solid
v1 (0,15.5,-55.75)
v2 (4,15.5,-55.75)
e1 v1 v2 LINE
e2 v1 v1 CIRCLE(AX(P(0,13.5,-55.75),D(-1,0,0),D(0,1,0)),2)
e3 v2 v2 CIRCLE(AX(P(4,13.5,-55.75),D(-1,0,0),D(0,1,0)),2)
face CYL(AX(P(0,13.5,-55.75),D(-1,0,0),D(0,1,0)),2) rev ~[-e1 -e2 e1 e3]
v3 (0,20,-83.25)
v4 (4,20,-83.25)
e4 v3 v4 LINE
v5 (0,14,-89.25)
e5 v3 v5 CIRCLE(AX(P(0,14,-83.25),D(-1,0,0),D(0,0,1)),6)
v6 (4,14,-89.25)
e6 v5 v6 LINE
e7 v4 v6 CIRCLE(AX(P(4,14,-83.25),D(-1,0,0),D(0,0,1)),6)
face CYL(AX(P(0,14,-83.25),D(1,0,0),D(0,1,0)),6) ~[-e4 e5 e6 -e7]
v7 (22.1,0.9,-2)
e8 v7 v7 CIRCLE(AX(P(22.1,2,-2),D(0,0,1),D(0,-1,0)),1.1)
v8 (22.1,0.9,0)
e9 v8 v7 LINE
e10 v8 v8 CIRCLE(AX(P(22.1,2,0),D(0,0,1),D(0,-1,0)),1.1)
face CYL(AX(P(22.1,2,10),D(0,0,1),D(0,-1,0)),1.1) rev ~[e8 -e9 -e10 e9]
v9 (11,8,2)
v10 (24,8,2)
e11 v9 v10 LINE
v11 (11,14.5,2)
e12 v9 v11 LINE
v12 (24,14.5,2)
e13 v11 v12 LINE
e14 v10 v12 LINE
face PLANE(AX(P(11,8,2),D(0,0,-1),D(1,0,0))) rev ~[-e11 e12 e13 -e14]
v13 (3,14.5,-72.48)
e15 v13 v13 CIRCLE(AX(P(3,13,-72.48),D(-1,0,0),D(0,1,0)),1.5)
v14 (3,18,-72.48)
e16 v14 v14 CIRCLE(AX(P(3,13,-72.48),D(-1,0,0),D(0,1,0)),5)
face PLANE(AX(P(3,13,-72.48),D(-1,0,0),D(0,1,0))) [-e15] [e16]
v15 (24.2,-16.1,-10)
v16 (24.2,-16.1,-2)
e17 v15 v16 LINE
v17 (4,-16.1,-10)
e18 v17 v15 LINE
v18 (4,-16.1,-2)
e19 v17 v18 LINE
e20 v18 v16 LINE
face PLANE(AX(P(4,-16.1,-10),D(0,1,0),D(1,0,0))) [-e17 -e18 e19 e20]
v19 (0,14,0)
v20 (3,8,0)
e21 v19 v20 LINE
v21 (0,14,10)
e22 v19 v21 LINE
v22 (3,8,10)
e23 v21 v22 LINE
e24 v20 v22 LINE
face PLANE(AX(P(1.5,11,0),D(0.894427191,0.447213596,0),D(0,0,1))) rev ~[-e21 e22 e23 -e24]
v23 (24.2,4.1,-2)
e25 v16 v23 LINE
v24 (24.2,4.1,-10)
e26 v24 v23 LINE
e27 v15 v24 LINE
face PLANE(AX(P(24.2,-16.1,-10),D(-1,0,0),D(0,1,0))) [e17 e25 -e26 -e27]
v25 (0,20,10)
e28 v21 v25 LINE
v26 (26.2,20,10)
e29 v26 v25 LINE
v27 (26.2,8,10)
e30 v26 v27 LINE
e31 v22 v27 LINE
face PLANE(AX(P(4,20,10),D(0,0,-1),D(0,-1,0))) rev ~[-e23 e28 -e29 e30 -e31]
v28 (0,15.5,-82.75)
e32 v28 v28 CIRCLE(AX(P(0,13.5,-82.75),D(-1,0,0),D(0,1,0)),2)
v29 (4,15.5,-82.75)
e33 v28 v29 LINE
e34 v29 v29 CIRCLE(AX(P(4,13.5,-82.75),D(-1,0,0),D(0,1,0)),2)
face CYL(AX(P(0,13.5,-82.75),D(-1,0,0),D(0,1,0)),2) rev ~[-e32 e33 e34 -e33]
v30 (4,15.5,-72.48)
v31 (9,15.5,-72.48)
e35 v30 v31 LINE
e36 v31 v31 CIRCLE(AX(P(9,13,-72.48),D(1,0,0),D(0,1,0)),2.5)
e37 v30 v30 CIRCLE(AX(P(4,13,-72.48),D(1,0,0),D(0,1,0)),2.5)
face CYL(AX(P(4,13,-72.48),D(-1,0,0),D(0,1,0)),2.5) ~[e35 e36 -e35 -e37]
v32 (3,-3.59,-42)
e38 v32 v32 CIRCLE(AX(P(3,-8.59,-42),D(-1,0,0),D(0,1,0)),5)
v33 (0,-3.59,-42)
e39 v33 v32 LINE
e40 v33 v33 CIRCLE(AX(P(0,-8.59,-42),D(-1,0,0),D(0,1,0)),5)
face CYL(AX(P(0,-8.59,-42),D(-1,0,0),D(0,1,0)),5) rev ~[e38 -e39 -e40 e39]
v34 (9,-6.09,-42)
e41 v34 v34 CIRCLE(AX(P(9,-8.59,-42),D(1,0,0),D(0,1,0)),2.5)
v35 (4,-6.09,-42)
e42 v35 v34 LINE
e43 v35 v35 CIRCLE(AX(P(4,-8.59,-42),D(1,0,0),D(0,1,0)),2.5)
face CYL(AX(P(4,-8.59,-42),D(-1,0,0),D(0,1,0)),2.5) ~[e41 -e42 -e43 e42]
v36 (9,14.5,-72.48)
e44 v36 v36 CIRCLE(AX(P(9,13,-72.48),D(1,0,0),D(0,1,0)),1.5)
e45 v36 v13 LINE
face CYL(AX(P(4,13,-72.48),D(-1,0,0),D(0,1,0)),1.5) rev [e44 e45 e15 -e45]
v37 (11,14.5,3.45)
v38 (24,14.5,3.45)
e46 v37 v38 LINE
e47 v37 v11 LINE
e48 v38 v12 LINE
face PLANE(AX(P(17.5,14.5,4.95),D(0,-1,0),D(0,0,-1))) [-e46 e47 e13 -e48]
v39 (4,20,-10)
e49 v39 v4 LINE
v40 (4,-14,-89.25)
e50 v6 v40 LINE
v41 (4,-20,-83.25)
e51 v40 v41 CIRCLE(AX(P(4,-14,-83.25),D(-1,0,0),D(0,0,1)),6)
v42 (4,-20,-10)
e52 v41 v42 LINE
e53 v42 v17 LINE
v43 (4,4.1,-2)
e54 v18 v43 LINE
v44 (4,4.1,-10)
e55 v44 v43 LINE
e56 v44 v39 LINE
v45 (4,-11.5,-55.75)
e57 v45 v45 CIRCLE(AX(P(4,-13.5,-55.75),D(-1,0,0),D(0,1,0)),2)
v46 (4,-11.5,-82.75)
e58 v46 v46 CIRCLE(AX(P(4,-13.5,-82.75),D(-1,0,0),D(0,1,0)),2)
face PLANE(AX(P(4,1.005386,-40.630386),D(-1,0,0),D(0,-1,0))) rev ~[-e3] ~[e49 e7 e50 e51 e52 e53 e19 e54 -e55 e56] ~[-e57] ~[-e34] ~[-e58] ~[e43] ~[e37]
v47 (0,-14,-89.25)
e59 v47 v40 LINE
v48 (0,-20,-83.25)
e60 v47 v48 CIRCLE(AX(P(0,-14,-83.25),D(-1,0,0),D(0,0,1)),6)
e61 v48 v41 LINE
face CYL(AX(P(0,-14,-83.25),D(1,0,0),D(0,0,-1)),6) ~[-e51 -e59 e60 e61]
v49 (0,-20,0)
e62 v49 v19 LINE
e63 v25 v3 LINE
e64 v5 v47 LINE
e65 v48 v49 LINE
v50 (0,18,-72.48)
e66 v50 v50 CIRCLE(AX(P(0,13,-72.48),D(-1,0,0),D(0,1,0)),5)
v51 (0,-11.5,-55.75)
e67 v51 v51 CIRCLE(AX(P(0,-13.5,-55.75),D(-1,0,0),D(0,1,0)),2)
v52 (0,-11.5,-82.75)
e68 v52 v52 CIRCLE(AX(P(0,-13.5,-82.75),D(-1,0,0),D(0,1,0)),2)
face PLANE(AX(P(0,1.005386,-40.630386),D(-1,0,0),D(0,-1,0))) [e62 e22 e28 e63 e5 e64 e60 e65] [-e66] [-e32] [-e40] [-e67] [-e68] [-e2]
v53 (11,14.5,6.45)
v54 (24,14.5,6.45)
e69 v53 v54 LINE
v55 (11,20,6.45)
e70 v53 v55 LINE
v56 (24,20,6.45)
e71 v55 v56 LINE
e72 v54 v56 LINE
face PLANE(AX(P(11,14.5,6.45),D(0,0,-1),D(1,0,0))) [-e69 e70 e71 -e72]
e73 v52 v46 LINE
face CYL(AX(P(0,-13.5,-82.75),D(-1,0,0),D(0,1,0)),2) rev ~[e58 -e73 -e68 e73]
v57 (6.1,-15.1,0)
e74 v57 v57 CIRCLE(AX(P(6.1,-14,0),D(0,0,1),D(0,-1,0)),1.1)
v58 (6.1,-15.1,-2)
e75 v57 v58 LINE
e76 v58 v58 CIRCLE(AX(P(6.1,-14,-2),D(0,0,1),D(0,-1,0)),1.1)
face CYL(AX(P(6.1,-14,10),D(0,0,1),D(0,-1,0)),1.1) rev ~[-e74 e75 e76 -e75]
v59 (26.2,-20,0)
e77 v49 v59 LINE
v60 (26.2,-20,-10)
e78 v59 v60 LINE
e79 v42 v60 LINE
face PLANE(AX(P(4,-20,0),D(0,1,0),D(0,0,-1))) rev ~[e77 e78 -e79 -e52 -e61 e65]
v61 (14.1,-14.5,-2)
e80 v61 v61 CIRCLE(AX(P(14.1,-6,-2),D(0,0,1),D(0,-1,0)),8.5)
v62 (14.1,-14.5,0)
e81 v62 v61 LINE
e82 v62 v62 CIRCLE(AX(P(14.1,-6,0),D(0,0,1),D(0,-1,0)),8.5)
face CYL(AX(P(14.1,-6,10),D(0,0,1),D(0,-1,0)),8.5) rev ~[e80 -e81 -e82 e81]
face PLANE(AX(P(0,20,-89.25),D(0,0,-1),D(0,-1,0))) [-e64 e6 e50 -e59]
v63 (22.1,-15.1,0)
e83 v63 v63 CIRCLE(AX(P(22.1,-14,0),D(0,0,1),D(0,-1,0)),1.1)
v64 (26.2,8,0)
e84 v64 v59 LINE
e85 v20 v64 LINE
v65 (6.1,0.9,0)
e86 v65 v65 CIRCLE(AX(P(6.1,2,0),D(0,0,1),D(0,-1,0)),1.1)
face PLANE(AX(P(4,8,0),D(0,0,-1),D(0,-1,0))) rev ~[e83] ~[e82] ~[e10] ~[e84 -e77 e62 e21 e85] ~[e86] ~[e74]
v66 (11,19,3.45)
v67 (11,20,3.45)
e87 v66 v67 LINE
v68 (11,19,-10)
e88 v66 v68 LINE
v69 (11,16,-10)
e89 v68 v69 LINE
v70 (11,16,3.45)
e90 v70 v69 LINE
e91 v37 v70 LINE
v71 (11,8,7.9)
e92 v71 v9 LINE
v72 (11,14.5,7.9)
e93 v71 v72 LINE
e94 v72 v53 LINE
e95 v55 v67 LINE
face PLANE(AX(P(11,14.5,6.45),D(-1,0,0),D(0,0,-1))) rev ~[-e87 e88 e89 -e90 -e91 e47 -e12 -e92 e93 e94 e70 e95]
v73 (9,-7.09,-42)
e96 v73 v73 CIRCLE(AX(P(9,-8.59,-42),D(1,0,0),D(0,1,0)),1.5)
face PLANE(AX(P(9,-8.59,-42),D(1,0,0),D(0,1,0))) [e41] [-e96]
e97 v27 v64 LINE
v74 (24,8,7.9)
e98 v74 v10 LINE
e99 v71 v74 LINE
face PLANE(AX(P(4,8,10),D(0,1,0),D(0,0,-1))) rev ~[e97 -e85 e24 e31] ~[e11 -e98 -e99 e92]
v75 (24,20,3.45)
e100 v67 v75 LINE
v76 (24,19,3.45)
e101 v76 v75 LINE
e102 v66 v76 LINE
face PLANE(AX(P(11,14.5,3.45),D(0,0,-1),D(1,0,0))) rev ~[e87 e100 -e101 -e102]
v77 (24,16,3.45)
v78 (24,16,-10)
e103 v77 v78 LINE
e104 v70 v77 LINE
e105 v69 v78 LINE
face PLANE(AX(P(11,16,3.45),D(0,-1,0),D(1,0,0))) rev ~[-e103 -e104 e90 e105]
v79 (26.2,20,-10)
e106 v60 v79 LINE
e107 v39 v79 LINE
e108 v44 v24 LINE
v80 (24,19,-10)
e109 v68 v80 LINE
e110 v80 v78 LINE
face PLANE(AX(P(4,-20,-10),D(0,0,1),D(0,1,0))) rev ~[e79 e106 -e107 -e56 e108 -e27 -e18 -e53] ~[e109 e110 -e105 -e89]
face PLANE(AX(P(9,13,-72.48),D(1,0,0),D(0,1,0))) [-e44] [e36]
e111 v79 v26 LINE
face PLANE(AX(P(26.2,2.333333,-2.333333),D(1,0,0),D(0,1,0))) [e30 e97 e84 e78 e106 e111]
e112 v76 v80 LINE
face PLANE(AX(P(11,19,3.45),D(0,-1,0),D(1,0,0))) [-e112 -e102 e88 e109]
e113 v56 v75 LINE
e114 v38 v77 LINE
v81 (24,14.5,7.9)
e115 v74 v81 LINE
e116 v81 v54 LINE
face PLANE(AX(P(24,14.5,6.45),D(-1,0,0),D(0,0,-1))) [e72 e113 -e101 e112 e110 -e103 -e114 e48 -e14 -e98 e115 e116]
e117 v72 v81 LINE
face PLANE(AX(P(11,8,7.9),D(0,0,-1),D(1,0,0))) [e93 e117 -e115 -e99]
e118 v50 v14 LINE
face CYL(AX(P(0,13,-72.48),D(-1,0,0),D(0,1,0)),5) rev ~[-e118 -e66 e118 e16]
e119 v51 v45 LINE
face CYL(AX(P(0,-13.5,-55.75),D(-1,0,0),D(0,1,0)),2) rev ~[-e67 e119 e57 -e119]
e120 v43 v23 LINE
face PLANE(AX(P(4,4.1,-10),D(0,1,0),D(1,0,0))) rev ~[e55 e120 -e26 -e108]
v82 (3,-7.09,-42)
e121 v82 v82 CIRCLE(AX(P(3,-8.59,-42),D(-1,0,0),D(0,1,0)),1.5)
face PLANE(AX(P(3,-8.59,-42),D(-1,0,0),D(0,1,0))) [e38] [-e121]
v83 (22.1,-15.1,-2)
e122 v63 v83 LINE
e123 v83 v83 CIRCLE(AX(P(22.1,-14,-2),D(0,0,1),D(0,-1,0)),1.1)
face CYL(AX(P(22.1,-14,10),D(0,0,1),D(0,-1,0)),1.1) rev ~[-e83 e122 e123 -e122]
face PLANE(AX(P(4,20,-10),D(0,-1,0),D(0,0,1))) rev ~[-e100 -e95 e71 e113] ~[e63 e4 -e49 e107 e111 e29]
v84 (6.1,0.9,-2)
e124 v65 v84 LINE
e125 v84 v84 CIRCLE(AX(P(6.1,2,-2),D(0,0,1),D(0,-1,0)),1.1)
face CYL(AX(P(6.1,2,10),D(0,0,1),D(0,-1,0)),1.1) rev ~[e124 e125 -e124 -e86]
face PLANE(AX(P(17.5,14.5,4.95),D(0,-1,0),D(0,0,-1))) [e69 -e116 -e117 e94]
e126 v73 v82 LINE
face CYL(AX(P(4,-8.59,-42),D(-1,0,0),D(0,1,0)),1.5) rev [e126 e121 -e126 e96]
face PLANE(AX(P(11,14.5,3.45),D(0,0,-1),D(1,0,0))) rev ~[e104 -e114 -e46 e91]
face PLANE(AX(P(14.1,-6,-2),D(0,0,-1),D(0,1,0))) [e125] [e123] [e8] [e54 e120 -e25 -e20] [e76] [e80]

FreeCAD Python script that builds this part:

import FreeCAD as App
import Part
import Sketcher

V = App.Vector


def edges_at(feature, points):
    """Names of the edges that pass closest to the given points."""
    edges = feature.Shape.Edges
    near = lambda p: min(range(len(edges)), key=lambda i: edges[i].distToShape(Part.Vertex(*p))[0])
    return sorted({f"Edge{near(p) + 1}" for p in points})


def add_polygon(sketch, points):
    """Adds a closed chain of lines whose ends are joined by coincident constraints."""
    first, n = sketch.GeometryCount, len(points)
    for a, b in zip(points, points[1:] + points[:1]):
        sketch.addGeometry(Part.LineSegment(App.Vector(*a, 0), App.Vector(*b, 0)), False)
    for i in range(n):
        sketch.addConstraint(Sketcher.Constraint("Coincident", first + i, 2, first + (i + 1) % n, 1))

doc = App.newDocument("Part")
body = doc.addObject("PartDesign::Body", "Body")

sketch1 = doc.addObject("Sketcher::SketchObject", "Sketch")
body.addObject(sketch1)
sketch1.AttachmentSupport = (doc.YZ_Plane, [""])
sketch1.MapMode = "FlatFace"
add_polygon(sketch1, [(-20, -89.25), (20, -89.25), (20, 10), (8, 10), (8, 0), (-20, 0)])
sketch1.addConstraint(Sketcher.Constraint("Horizontal", 0))
sketch1.addConstraint(Sketcher.Constraint("Vertical", 1))
sketch1.addConstraint(Sketcher.Constraint("Horizontal", 2))
sketch1.addConstraint(Sketcher.Constraint("Vertical", 3))
sketch1.addConstraint(Sketcher.Constraint("Horizontal", 4))
sketch1.addConstraint(Sketcher.Constraint("Vertical", 5))
sketch1.addConstraint(Sketcher.Constraint("PointOnObject", 3, 2, -1))
sketch1.addConstraint(Sketcher.Constraint("DistanceX", 0, 1, 0, 2, 40.0))
sketch1.addConstraint(Sketcher.Constraint("DistanceX", 2, 2, 2, 1, 12.0))
sketch1.addConstraint(Sketcher.Constraint("DistanceY", 3, 2, 3, 1, 10.0))
sketch1.addConstraint(Sketcher.Constraint("DistanceX", -1, 1, 0, 2, 20.0))
sketch1.addConstraint(Sketcher.Constraint("DistanceY", 1, 1, 1, 2, 99.25))
pad1 = doc.addObject("PartDesign::Pad", "Pad")
body.addObject(pad1)
pad1.Profile = sketch1
pad1.Length = 4

sketch2 = doc.addObject("Sketcher::SketchObject", "Sketch001")
body.addObject(sketch2)
sketch2.AttachmentSupport = (doc.YZ_Plane, [""])
sketch2.MapMode = "FlatFace"
sketch2.AttachmentOffset = App.Placement(V(0, 0, 4), App.Rotation())
add_polygon(sketch2, [(20, 10), (8, 10), (8, 0), (-20, 0), (-20, -10), (20, -10)])
sketch2.addConstraint(Sketcher.Constraint("Horizontal", 0))
sketch2.addConstraint(Sketcher.Constraint("Vertical", 1))
sketch2.addConstraint(Sketcher.Constraint("Horizontal", 2))
sketch2.addConstraint(Sketcher.Constraint("Vertical", 3))
sketch2.addConstraint(Sketcher.Constraint("Horizontal", 4))
sketch2.addConstraint(Sketcher.Constraint("Vertical", 5))
sketch2.addConstraint(Sketcher.Constraint("Symmetric", 3, 2, 5, 2, -1, 1))
sketch2.addConstraint(Sketcher.Constraint("PointOnObject", 1, 2, -1))
sketch2.addConstraint(Sketcher.Constraint("DistanceX", 0, 2, 0, 1, 12.0))
sketch2.addConstraint(Sketcher.Constraint("DistanceX", 2, 2, 2, 1, 28.0))
sketch2.addConstraint(Sketcher.Constraint("DistanceY", 1, 2, 1, 1, 10.0))
pad2 = doc.addObject("PartDesign::Pad", "Pad001")
body.addObject(pad2)
pad2.Profile = sketch2
pad2.Length = 22.2

sketch3 = doc.addObject("Sketcher::SketchObject", "Sketch002")
body.addObject(sketch3)
sketch3.AttachmentSupport = (doc.YZ_Plane, [""])
sketch3.MapMode = "FlatFace"
sketch3.addGeometry(Part.Circle(V(-13.5, -82.75, 0), V(0, 0, 1), 2), False)
sketch3.addGeometry(Part.Circle(V(13.5, -82.75, 0), V(0, 0, 1), 2), False)
sketch3.addGeometry(Part.Circle(V(13.5, -55.75, 0), V(0, 0, 1), 2), False)
sketch3.addGeometry(Part.Circle(V(-13.5, -55.75, 0), V(0, 0, 1), 2), False)
sketch3.addGeometry(Part.Circle(V(13, -72.48, 0), V(0, 0, 1), 1.5), False)
sketch3.addGeometry(Part.Circle(V(-8.59, -42, 0), V(0, 0, 1), 1.5), False)
sketch3.addConstraint(Sketcher.Constraint("Equal", 0, 1))
sketch3.addConstraint(Sketcher.Constraint("Equal", 1, 2))
sketch3.addConstraint(Sketcher.Constraint("Equal", 2, 3))
sketch3.addConstraint(Sketcher.Constraint("Equal", 4, 5))
sketch3.addConstraint(Sketcher.Constraint("Symmetric", 0, 3, 1, 3, -2))
sketch3.addConstraint(Sketcher.Constraint("Symmetric", 2, 3, 3, 3, -2))
sketch3.addConstraint(Sketcher.Constraint("Vertical", 1, 3, 2, 3))
sketch3.addConstraint(Sketcher.Constraint("Diameter", 0, 4.0))
sketch3.addConstraint(Sketcher.Constraint("Diameter", 4, 3.0))
sketch3.addConstraint(Sketcher.Constraint("DistanceX", -1, 1, 4, 3, 13.0))
sketch3.addConstraint(Sketcher.Constraint("DistanceY", 5, 3, -1, 1, 42.0))
sketch3.addConstraint(Sketcher.Constraint("DistanceX", 0, 3, 1, 3, 27.0))
sketch3.addConstraint(Sketcher.Constraint("DistanceY", 1, 3, 2, 3, 27.0))
sketch3.addConstraint(Sketcher.Constraint("DistanceY", 0, 3, -1, 1, 82.75))
sketch3.addConstraint(Sketcher.Constraint("DistanceY", 4, 3, -1, 1, 72.48))
sketch3.addConstraint(Sketcher.Constraint("DistanceX", 5, 3, -1, 1, 8.59))
pocket1 = doc.addObject("PartDesign::Pocket", "Pocket")
body.addObject(pocket1)
pocket1.Profile = sketch3
pocket1.Type = "ThroughAll"
pocket1.Reversed = True

sketch4 = doc.addObject("Sketcher::SketchObject", "Sketch003")
body.addObject(sketch4)
sketch4.AttachmentSupport = (doc.XY_Plane, [""])
sketch4.MapMode = "FlatFace"
sketch4.AttachmentOffset = App.Placement(V(0, 0, -10), App.Rotation())
add_polygon(sketch4, [(24.2, -16.1), (4, -16.1), (4, 4.1), (24.2, 4.1)])
sketch4.addConstraint(Sketcher.Constraint("Horizontal", 0))
sketch4.addConstraint(Sketcher.Constraint("Vertical", 1))
sketch4.addConstraint(Sketcher.Constraint("Horizontal", 2))
sketch4.addConstraint(Sketcher.Constraint("Vertical", 3))
sketch4.addConstraint(Sketcher.Constraint("Equal", 2, 1))
sketch4.addConstraint(Sketcher.Constraint("DistanceX", 0, 2, 0, 1, 20.2))
sketch4.addConstraint(Sketcher.Constraint("DistanceX", -1, 1, 0, 2, 4.0))
sketch4.addConstraint(Sketcher.Constraint("DistanceY", 0, 2, -1, 1, 16.1))
pocket2 = doc.addObject("PartDesign::Pocket", "Pocket001")
body.addObject(pocket2)
pocket2.Profile = sketch4
pocket2.Length = 8
pocket2.Reversed = True

sketch5 = doc.addObject("Sketcher::SketchObject", "Sketch004")
body.addObject(sketch5)
sketch5.AttachmentSupport = (doc.XY_Plane, [""])
sketch5.MapMode = "FlatFace"
sketch5.AttachmentOffset = App.Placement(V(0, 0, 10), App.Rotation())
sketch5.addGeometry(Part.Circle(V(6.1, 2, 0), V(0, 0, 1), 1.1), False)
sketch5.addGeometry(Part.Circle(V(6.1, -14, 0), V(0, 0, 1), 1.1), False)
sketch5.addGeometry(Part.Circle(V(22.1, -14, 0), V(0, 0, 1), 1.1), False)
sketch5.addGeometry(Part.Circle(V(22.1, 2, 0), V(0, 0, 1), 1.1), False)
sketch5.addGeometry(Part.Circle(V(14.1, -6, 0), V(0, 0, 1), 8.5), False)
sketch5.addConstraint(Sketcher.Constraint("Equal", 0, 1))
sketch5.addConstraint(Sketcher.Constraint("Equal", 1, 2))
sketch5.addConstraint(Sketcher.Constraint("Equal", 2, 3))
sketch5.addConstraint(Sketcher.Constraint("Horizontal", 1, 3, 2, 3))
sketch5.addConstraint(Sketcher.Constraint("Horizontal", 0, 3, 3, 3))
sketch5.addConstraint(Sketcher.Constraint("Vertical", 0, 3, 1, 3))
sketch5.addConstraint(Sketcher.Constraint("Vertical", 2, 3, 3, 3))
sketch5.addConstraint(Sketcher.Constraint("Diameter", 4, 17.0))
sketch5.addConstraint(Sketcher.Constraint("Diameter", 0, 2.2))
sketch5.addConstraint(Sketcher.Constraint("DistanceY", -1, 1, 0, 3, 2.0))
sketch5.addConstraint(Sketcher.Constraint("DistanceY", 1, 3, -1, 1, 14.0))
sketch5.addConstraint(Sketcher.Constraint("DistanceY", 4, 3, -1, 1, 6.0))
sketch5.addConstraint(Sketcher.Constraint("DistanceX", 1, 3, 2, 3, 16.0))
sketch5.addConstraint(Sketcher.Constraint("DistanceX", 0, 3, 4, 3, 8.0))
sketch5.addConstraint(Sketcher.Constraint("DistanceX", -1, 1, 0, 3, 6.1))
pocket3 = doc.addObject("PartDesign::Pocket", "Pocket002")
body.addObject(pocket3)
pocket3.Profile = sketch5
pocket3.Length = 50

sketch6 = doc.addObject("Sketcher::SketchObject", "Sketch005")
body.addObject(sketch6)
sketch6.AttachmentSupport = (doc.XZ_Plane, [""])
sketch6.MapMode = "FlatFace"
sketch6.AttachmentOffset = App.Placement(V(0, 0, -8), App.Rotation())
add_polygon(sketch6, [(24, 7.9), (11, 7.9), (11, 2), (24, 2)])
sketch6.addConstraint(Sketcher.Constraint("Horizontal", 0))
sketch6.addConstraint(Sketcher.Constraint("Vertical", 1))
sketch6.addConstraint(Sketcher.Constraint("Horizontal", 2))
sketch6.addConstraint(Sketcher.Constraint("Vertical", 3))
sketch6.addConstraint(Sketcher.Constraint("DistanceX", 0, 2, 0, 1, 13.0))
sketch6.addConstraint(Sketcher.Constraint("DistanceY", 1, 2, 1, 1, 5.9))
sketch6.addConstraint(Sketcher.Constraint("DistanceX", -1, 1, 0, 2, 11.0))
sketch6.addConstraint(Sketcher.Constraint("DistanceY", -1, 1, 1, 2, 2.0))
pocket4 = doc.addObject("PartDesign::Pocket", "Pocket003")
body.addObject(pocket4)
pocket4.Profile = sketch6
pocket4.Length = 6.5

sketch7 = doc.addObject("Sketcher::SketchObject", "Sketch006")
body.addObject(sketch7)
sketch7.AttachmentSupport = (doc.XZ_Plane, [""])
sketch7.MapMode = "FlatFace"
sketch7.AttachmentOffset = App.Placement(V(0, 0, -14.5), App.Rotation())
add_polygon(sketch7, [(24, 6.45), (11, 6.45), (11, 3.45), (24, 3.45)])
sketch7.addConstraint(Sketcher.Constraint("Horizontal", 0))
sketch7.addConstraint(Sketcher.Constraint("Vertical", 1))
sketch7.addConstraint(Sketcher.Constraint("Horizontal", 2))
sketch7.addConstraint(Sketcher.Constraint("Vertical", 3))
sketch7.addConstraint(Sketcher.Constraint("DistanceX", 0, 2, 0, 1, 13.0))
sketch7.addConstraint(Sketcher.Constraint("DistanceY", 1, 2, 1, 1, 3.0))
sketch7.addConstraint(Sketcher.Constraint("DistanceX", -1, 1, 0, 2, 11.0))
sketch7.addConstraint(Sketcher.Constraint("DistanceY", -1, 1, 0, 2, 6.45))
pocket5 = doc.addObject("PartDesign::Pocket", "Pocket004")
body.addObject(pocket5)
pocket5.Profile = sketch7
pocket5.Type = "ThroughAll"

sketch8 = doc.addObject("Sketcher::SketchObject", "Sketch007")
body.addObject(sketch8)
sketch8.AttachmentSupport = (doc.XY_Plane, [""])
sketch8.MapMode = "FlatFace"
sketch8.AttachmentOffset = App.Placement(V(0, 0, 3.45), App.Rotation())
add_polygon(sketch8, [(24, 19), (11, 19), (11, 16), (24, 16)])
sketch8.addConstraint(Sketcher.Constraint("Horizontal", 0))
sketch8.addConstraint(Sketcher.Constraint("Vertical", 1))
sketch8.addConstraint(Sketcher.Constraint("Horizontal", 2))
sketch8.addConstraint(Sketcher.Constraint("Vertical", 3))
sketch8.addConstraint(Sketcher.Constraint("DistanceX", 0, 2, 0, 1, 13.0))
sketch8.addConstraint(Sketcher.Constraint("DistanceY", 1, 2, 1, 1, 3.0))
sketch8.addConstraint(Sketcher.Constraint("DistanceX", -1, 1, 0, 2, 11.0))
sketch8.addConstraint(Sketcher.Constraint("DistanceY", -1, 1, 0, 2, 19.0))
pocket6 = doc.addObject("PartDesign::Pocket", "Pocket005")
body.addObject(pocket6)
pocket6.Profile = sketch8
pocket6.Length = 40

sketch9 = doc.addObject("Sketcher::SketchObject", "Sketch008")
body.addObject(sketch9)
sketch9.AttachmentSupport = (doc.YZ_Plane, [""])
sketch9.MapMode = "FlatFace"
sketch9.addGeometry(Part.Circle(V(-8.59, -42, 0), V(0, 0, 1), 5), False)
sketch9.addGeometry(Part.Circle(V(13, -72.48, 0), V(0, 0, 1), 5), False)
sketch9.addConstraint(Sketcher.Constraint("Equal", 0, 1))
sketch9.addConstraint(Sketcher.Constraint("Diameter", 0, 10.0))
sketch9.addConstraint(Sketcher.Constraint("DistanceY", 0, 3, -1, 1, 42.0))
sketch9.addConstraint(Sketcher.Constraint("DistanceX", -1, 1, 1, 3, 13.0))
sketch9.addConstraint(Sketcher.Constraint("DistanceX", 0, 3, -1, 1, 8.59))
sketch9.addConstraint(Sketcher.Constraint("DistanceY", 1, 3, -1, 1, 72.48))
pocket7 = doc.addObject("PartDesign::Pocket", "Pocket006")
body.addObject(pocket7)
pocket7.Profile = sketch9
pocket7.Length = 3
pocket7.Reversed = True
doc.recompute()

fillet = doc.addObject("PartDesign::Fillet", "Fillet")
body.addObject(fillet)
fillet.Base = (pocket7, edges_at(pocket7, [(2, -20, -89.25), (2, 20, -89.25)]))
fillet.Radius = 6

sketch10 = doc.addObject("Sketcher::SketchObject", "Sketch009")
body.addObject(sketch10)
sketch10.AttachmentSupport = (doc.YZ_Plane, [""])
sketch10.MapMode = "FlatFace"
sketch10.AttachmentOffset = App.Placement(V(0, 0, 4), App.Rotation())
sketch10.addGeometry(Part.Circle(V(-8.59, -42, 0), V(0, 0, 1), 2.5), False)
sketch10.addGeometry(Part.Circle(V(-8.59, -42, 0), V(0, 0, 1), 1.5), False)
sketch10.addGeometry(Part.Circle(V(13, -72.48, 0), V(0, 0, 1), 2.5), False)
sketch10.addGeometry(Part.Circle(V(13, -72.48, 0), V(0, 0, 1), 1.5), False)
sketch10.addConstraint(Sketcher.Constraint("Coincident", 1, 3, 0, 3))
sketch10.addConstraint(Sketcher.Constraint("Coincident", 3, 3, 2, 3))
sketch10.addConstraint(Sketcher.Constraint("Equal", 0, 2))
sketch10.addConstraint(Sketcher.Constraint("Equal", 1, 3))
sketch10.addConstraint(Sketcher.Constraint("Diameter", 0, 5.0))
sketch10.addConstraint(Sketcher.Constraint("Diameter", 1, 3.0))
sketch10.addConstraint(Sketcher.Constraint("DistanceY", 0, 3, -1, 1, 42.0))
sketch10.addConstraint(Sketcher.Constraint("DistanceX", -1, 1, 2, 3, 13.0))
sketch10.addConstraint(Sketcher.Constraint("DistanceX", 0, 3, -1, 1, 8.59))
sketch10.addConstraint(Sketcher.Constraint("DistanceY", 2, 3, -1, 1, 72.48))
pad3 = doc.addObject("PartDesign::Pad", "Pad002")
body.addObject(pad3)
pad3.Profile = sketch10
pad3.Length = 5
doc.recompute()

chamfer = doc.addObject("PartDesign::Chamfer", "Chamfer")
body.addObject(chamfer)
chamfer.Base = (pad3, edges_at(pad3, [(0, 8, 5)]))
chamfer.ChamferType = "Two distances"
chamfer.Size = 6
chamfer.Size2 = 3

doc.recompute()
